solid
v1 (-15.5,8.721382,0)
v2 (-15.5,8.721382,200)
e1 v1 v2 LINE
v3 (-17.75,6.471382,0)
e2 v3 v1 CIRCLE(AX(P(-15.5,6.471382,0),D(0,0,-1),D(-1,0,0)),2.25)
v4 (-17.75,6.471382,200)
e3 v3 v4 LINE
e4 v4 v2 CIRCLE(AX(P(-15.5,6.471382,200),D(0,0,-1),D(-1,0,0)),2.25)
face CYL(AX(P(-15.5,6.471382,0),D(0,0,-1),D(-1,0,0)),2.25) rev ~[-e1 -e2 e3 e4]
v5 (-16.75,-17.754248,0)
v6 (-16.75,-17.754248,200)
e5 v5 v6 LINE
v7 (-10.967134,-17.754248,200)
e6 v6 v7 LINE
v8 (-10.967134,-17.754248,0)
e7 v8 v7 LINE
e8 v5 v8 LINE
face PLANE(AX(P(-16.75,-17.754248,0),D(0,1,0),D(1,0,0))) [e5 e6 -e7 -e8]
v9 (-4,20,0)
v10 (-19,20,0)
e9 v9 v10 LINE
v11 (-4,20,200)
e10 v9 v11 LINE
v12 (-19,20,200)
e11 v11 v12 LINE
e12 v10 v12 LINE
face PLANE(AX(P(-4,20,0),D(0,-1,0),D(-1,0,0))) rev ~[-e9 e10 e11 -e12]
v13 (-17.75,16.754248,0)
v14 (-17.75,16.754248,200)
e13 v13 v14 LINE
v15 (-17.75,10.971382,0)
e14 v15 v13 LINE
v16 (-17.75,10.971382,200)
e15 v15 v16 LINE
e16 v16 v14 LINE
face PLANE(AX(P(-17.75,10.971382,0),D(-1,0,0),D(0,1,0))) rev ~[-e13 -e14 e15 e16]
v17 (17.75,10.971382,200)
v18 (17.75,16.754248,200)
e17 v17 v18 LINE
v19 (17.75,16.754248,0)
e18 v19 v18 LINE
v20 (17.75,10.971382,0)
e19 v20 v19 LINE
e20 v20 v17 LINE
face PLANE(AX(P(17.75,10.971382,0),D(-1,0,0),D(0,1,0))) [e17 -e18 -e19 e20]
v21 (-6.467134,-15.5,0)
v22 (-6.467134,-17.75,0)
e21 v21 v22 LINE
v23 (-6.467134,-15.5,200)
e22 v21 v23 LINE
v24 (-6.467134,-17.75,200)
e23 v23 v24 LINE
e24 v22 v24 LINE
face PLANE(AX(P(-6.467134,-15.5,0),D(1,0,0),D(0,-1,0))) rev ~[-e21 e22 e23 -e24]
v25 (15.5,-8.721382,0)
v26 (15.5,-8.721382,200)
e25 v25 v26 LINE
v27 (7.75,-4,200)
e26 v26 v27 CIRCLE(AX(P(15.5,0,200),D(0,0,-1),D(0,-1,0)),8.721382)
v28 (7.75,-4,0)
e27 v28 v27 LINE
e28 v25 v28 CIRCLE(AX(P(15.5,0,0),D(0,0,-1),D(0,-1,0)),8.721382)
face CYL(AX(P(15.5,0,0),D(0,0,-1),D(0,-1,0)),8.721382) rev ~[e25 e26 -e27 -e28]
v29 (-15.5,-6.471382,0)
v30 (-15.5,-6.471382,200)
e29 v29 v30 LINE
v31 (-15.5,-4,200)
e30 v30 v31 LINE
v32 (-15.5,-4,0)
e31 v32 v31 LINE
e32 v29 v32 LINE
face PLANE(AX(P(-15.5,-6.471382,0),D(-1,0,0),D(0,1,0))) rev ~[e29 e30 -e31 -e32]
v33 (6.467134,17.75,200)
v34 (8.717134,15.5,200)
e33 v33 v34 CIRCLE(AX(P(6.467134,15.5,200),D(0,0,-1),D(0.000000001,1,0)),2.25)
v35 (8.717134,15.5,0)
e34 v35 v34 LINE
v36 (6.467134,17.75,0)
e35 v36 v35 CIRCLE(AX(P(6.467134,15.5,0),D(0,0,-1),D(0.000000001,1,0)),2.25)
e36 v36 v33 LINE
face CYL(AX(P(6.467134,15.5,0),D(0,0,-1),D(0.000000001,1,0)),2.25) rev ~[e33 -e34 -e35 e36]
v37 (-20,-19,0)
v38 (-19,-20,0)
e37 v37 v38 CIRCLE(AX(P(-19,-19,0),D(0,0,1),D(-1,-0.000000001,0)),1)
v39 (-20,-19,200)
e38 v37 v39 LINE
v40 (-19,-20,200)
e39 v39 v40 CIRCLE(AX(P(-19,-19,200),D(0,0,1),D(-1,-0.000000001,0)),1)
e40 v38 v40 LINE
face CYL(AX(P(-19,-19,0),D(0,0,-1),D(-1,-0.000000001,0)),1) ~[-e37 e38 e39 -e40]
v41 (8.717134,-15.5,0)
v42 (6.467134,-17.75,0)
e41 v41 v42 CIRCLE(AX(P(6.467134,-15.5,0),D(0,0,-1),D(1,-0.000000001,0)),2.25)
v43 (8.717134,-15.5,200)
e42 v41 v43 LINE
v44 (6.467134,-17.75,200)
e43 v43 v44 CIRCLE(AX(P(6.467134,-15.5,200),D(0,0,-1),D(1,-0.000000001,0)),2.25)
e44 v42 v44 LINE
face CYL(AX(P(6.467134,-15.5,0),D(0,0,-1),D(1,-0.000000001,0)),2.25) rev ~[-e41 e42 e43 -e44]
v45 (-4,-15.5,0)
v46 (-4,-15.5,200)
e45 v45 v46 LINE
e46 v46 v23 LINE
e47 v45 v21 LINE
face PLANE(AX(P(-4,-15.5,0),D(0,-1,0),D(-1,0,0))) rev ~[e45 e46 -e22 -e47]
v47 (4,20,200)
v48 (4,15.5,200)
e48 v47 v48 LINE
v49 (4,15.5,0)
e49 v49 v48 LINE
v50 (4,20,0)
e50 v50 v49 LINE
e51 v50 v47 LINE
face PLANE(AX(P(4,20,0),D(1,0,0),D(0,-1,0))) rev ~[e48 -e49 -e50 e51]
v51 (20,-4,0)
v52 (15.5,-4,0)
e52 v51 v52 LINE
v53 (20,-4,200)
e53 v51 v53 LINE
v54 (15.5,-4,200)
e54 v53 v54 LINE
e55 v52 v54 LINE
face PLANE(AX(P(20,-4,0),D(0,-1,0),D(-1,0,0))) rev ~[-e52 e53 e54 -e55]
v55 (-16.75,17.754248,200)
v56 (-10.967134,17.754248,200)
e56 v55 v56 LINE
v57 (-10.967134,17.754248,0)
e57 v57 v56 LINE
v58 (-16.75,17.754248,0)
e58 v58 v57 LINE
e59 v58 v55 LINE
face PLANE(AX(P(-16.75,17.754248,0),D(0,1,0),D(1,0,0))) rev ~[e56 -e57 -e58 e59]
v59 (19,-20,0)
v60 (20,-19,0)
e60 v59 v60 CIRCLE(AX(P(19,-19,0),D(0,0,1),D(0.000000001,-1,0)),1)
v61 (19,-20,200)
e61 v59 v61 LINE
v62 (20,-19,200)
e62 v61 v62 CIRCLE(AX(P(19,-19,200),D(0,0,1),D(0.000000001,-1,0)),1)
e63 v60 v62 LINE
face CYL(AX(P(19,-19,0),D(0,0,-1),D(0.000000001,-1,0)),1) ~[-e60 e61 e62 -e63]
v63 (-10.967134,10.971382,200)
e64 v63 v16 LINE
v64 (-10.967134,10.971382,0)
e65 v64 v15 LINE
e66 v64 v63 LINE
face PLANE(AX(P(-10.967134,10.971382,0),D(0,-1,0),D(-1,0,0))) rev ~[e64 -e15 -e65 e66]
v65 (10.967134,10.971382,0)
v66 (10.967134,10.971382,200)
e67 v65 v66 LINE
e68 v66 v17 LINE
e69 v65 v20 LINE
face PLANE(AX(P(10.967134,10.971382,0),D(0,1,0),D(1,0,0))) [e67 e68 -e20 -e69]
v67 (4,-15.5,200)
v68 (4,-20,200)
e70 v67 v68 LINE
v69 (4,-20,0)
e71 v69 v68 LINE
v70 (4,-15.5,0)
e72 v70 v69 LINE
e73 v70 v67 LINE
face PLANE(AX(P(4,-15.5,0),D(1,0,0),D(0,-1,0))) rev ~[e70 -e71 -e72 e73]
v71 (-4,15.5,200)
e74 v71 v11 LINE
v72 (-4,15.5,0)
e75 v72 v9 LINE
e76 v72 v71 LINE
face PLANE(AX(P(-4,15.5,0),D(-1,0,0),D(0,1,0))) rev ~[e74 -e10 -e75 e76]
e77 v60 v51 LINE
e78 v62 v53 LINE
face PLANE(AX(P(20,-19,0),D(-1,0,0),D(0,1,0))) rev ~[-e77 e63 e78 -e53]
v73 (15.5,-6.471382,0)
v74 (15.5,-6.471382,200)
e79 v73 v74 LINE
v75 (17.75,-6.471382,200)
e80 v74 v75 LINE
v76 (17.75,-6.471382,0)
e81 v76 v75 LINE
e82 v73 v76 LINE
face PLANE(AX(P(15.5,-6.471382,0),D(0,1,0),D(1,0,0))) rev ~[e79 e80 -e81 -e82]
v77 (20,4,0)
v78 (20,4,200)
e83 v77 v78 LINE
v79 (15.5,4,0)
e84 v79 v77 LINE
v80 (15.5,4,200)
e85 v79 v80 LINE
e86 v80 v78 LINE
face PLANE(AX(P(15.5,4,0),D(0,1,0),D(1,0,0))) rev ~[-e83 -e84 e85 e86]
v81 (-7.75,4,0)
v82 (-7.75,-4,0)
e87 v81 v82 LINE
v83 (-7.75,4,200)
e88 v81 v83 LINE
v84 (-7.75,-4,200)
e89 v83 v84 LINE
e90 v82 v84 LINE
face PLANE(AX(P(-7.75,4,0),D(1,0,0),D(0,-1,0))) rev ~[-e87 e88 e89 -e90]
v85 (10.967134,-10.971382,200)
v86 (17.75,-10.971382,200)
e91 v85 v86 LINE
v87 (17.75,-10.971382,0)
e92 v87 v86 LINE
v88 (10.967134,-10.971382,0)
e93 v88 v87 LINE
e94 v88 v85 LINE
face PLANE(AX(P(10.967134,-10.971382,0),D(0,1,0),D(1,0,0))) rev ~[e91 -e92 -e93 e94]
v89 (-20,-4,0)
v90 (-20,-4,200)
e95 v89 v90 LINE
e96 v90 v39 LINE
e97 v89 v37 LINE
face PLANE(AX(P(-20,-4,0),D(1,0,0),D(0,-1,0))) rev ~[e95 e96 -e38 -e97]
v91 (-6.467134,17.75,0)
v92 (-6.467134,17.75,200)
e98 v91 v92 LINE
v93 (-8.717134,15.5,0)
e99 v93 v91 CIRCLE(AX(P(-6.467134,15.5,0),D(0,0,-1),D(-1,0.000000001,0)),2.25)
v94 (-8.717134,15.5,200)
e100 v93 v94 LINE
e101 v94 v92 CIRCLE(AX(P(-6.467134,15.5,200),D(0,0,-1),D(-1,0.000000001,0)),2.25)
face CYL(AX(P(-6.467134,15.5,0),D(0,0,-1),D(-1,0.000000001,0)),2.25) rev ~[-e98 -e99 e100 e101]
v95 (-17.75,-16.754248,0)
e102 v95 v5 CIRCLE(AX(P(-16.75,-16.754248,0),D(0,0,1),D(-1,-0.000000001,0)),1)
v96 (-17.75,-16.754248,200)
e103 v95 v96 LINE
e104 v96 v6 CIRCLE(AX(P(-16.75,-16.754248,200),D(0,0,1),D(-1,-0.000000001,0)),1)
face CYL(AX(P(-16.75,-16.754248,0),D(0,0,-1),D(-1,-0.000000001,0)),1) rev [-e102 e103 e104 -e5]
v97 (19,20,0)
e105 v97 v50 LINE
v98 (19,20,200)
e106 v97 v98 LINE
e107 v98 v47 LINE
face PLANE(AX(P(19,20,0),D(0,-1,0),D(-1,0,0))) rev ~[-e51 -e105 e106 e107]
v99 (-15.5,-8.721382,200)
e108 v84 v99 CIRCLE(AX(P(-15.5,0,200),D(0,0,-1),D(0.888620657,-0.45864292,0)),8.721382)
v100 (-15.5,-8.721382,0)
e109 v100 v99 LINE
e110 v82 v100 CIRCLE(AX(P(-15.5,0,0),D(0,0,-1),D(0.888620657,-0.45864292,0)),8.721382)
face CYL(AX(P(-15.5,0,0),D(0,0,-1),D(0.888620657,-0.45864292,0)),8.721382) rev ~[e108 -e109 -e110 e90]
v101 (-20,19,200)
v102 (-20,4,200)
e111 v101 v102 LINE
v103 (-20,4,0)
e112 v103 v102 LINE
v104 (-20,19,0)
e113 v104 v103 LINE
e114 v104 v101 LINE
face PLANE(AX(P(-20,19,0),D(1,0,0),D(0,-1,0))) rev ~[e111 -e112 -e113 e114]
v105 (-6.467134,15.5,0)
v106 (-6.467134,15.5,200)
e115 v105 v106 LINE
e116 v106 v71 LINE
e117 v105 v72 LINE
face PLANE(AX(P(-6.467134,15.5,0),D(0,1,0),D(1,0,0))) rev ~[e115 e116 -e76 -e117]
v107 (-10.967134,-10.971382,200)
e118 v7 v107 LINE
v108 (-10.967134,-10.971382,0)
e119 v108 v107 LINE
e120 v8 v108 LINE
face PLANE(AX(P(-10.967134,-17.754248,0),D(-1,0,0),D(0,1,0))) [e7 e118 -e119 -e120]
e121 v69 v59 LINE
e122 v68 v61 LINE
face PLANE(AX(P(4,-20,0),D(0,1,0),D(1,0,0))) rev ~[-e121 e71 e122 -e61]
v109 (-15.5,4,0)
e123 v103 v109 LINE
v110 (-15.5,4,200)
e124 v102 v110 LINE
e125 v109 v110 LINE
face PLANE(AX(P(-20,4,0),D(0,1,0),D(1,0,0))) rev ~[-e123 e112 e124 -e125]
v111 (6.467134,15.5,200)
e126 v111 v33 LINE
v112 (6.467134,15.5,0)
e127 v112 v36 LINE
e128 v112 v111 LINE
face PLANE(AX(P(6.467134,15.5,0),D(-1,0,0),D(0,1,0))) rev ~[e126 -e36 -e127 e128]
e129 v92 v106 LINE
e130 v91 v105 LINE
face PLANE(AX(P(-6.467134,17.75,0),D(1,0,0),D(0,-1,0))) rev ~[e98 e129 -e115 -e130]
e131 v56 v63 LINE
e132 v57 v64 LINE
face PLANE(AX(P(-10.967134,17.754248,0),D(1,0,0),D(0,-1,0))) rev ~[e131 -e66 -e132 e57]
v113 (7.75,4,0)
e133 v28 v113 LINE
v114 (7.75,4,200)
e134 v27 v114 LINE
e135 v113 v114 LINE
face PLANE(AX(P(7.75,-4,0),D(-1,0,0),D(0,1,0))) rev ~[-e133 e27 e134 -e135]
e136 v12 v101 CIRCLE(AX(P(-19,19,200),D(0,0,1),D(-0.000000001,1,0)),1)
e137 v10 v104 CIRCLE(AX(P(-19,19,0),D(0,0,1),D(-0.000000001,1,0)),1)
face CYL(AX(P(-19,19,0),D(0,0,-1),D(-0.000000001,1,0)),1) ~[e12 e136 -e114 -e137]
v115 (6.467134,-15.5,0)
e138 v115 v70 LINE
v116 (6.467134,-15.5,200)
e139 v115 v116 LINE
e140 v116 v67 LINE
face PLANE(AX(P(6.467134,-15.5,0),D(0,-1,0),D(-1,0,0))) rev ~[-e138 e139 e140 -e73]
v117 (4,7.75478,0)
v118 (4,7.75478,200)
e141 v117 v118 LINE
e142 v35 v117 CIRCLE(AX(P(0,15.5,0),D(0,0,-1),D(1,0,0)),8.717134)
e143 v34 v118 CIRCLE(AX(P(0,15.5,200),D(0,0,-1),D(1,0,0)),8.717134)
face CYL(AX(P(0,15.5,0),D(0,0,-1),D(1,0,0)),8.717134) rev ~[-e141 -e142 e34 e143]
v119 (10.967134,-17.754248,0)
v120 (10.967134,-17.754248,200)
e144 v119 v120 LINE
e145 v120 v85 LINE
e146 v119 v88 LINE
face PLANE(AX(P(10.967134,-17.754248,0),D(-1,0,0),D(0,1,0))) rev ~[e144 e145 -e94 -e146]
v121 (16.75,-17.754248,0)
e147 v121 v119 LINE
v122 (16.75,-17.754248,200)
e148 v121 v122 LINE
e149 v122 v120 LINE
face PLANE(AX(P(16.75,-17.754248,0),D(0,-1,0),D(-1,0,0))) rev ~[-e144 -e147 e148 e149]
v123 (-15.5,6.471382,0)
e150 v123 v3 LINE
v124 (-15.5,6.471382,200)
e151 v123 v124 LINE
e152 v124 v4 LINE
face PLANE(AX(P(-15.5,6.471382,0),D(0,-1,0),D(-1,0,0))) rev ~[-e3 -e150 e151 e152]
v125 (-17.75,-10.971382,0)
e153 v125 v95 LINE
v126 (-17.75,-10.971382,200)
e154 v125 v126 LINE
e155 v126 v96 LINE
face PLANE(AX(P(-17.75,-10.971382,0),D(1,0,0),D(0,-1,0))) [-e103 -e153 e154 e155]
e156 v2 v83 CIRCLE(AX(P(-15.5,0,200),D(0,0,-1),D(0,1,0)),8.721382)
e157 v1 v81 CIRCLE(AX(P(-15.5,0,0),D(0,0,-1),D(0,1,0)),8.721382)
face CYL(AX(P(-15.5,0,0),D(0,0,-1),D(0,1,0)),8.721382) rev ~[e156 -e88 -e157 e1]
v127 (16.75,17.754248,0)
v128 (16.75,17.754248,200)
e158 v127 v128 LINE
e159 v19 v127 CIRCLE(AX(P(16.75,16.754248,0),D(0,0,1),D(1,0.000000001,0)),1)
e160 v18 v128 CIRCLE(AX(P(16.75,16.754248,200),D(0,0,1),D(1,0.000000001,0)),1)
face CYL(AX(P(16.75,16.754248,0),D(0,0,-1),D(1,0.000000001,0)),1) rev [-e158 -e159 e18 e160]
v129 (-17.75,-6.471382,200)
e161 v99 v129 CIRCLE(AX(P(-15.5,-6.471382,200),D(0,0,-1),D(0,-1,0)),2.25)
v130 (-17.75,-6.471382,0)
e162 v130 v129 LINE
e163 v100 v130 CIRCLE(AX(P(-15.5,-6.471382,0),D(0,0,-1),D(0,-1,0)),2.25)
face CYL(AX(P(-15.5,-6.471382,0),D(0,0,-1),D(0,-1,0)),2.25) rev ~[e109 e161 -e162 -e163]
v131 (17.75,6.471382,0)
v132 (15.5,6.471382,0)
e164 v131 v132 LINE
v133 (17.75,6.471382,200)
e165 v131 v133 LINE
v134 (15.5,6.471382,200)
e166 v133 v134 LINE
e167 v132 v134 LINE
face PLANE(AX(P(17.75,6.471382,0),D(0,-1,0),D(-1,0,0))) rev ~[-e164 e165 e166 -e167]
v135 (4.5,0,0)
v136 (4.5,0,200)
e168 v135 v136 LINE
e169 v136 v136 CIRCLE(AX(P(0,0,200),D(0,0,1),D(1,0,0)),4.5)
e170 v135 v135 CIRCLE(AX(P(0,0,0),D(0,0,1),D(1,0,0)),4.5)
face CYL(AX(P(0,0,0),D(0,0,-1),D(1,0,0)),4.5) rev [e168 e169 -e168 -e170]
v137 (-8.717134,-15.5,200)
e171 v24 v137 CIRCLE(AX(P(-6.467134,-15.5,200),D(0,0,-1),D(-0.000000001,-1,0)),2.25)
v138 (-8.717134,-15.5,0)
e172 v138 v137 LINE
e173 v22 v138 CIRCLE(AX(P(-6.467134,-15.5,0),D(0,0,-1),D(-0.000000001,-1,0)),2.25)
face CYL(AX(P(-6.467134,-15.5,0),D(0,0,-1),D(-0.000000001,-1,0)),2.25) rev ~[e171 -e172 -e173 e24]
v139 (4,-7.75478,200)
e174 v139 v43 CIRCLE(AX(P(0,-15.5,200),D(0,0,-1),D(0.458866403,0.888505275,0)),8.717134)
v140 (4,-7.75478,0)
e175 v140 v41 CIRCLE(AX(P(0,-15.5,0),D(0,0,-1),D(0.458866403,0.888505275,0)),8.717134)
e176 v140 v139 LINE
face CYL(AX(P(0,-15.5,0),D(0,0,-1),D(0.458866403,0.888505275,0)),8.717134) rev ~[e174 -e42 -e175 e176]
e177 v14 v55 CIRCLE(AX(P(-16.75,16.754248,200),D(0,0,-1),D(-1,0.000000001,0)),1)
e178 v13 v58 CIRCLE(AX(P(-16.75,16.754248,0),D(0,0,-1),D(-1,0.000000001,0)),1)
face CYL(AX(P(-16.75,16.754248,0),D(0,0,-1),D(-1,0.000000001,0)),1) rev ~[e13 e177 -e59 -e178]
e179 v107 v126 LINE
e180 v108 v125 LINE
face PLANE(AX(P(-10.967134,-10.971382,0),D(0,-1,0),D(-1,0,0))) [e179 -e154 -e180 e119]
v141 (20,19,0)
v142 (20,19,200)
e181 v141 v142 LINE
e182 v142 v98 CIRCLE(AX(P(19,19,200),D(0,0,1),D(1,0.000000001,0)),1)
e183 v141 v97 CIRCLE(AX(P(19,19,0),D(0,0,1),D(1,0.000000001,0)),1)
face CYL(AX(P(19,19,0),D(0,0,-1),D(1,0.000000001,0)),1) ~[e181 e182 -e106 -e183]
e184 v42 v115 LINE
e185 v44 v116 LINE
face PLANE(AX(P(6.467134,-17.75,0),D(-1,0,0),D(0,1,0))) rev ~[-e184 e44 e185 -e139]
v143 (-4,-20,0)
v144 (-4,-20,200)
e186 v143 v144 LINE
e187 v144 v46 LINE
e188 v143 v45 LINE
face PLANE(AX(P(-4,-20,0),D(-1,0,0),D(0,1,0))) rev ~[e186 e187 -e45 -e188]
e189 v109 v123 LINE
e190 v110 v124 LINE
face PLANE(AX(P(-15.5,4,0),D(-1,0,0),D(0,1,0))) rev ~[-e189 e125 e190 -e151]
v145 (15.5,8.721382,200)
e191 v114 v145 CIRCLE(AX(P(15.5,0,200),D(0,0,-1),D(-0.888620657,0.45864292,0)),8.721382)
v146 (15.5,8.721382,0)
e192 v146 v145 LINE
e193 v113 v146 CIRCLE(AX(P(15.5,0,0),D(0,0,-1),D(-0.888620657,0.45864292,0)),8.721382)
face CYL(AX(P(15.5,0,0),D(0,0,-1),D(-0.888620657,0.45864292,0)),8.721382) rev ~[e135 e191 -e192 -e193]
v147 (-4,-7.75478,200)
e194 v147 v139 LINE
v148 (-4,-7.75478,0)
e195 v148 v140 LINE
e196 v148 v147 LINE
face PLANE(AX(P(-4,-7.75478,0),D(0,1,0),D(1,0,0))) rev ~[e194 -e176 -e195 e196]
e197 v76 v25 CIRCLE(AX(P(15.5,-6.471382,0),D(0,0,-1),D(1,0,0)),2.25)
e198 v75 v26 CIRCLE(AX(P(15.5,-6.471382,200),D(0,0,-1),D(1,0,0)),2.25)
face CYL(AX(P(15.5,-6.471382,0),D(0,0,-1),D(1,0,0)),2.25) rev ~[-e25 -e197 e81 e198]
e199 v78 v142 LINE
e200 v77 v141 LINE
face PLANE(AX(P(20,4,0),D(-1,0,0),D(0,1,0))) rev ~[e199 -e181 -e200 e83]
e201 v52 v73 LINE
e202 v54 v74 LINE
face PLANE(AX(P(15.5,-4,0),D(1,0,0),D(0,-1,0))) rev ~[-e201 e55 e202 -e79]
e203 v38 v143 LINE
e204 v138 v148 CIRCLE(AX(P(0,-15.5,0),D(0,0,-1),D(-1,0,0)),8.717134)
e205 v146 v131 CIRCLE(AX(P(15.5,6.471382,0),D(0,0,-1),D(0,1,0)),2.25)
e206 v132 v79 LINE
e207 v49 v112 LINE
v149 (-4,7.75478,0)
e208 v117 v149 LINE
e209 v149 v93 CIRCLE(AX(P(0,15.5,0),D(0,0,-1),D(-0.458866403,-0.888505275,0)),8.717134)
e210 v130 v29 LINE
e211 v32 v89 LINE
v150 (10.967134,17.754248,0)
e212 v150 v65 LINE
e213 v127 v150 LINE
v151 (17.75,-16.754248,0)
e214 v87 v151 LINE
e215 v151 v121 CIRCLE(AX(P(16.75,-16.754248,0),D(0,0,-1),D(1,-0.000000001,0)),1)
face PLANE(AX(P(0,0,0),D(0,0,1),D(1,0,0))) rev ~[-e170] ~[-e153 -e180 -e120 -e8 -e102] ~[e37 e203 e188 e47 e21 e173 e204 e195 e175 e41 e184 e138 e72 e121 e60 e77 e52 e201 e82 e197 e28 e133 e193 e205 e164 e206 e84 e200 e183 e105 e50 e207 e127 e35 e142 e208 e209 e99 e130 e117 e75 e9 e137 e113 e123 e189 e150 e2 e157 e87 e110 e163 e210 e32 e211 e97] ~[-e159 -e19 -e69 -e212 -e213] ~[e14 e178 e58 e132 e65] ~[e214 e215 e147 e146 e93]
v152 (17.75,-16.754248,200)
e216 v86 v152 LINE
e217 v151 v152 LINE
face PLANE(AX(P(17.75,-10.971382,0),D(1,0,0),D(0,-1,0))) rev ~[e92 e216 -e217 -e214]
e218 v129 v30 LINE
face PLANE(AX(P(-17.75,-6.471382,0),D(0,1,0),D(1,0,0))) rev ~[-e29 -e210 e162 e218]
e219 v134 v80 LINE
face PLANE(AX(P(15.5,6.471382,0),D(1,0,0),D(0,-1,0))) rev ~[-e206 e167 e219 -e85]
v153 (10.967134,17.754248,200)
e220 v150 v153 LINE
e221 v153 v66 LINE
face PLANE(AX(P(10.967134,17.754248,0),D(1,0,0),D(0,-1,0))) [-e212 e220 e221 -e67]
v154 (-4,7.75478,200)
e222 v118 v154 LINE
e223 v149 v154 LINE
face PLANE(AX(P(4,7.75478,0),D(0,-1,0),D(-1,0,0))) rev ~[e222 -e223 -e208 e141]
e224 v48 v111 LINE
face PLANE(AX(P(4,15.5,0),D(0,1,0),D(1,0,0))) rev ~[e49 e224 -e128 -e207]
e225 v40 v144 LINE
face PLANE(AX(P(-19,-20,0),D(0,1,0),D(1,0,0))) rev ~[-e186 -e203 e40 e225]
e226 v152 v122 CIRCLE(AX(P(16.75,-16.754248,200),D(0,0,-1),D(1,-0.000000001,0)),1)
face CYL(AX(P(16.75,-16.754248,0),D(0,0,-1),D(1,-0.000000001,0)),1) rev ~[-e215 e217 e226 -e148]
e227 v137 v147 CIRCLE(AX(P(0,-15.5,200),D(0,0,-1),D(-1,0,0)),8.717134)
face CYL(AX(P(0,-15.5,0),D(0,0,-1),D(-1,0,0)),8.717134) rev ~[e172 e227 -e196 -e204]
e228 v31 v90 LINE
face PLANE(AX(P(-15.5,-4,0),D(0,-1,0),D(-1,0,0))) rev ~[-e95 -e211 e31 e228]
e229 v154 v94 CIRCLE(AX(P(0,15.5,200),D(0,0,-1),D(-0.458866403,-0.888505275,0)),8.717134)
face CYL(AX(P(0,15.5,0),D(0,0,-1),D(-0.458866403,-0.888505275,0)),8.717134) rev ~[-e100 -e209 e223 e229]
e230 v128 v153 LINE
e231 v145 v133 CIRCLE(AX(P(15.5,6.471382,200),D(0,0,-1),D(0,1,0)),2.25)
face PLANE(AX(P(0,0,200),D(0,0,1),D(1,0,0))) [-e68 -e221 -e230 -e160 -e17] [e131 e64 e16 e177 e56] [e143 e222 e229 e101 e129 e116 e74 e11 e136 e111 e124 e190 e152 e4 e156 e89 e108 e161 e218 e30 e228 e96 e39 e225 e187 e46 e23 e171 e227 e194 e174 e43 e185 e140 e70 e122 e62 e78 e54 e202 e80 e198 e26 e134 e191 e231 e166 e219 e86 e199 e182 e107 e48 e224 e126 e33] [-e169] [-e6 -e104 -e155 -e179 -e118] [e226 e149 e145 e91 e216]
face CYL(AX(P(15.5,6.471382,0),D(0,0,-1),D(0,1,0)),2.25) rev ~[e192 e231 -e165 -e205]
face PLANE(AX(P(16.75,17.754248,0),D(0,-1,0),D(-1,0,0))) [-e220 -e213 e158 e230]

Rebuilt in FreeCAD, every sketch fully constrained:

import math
import FreeCAD as App
import Part
import Sketcher
Q = App.Units.Quantity

doc = App.newDocument("Part")
body = doc.addObject("PartDesign::Body", "Body")

# Sketch on XY plane
sketch1 = body.newObject("Sketcher::SketchObject", "Sketch")
sketch1.AttachmentSupport = (doc.getObject("XY_Plane"), [""])
sketch1.MapMode = "FlatFace"
sketch1.addGeometry(Part.LineSegment(App.Vector(4, 7.75478, 0), App.Vector(-4, 7.75478, 0)), False)
sketch1.addGeometry(Part.ArcOfCircle(Part.Circle(App.Vector(0, 15.5, 0), App.Vector(0, 0, 1), 8.717134), math.radians(-180), math.radians(-117.313983)), False)
sketch1.addGeometry(Part.ArcOfCircle(Part.Circle(App.Vector(-6.467134, 15.5, 0), App.Vector(0, 0, 1), 2.25), math.radians(90), math.radians(180)), False)
sketch1.addGeometry(Part.LineSegment(App.Vector(-6.467134, 17.75, 0), App.Vector(-6.467134, 15.5, 0)), False)
sketch1.addGeometry(Part.LineSegment(App.Vector(-6.467134, 15.5, 0), App.Vector(-4, 15.5, 0)), False)
sketch1.addGeometry(Part.LineSegment(App.Vector(-4, 15.5, 0), App.Vector(-4, 20, 0)), False)
sketch1.addGeometry(Part.LineSegment(App.Vector(-4, 20, 0), App.Vector(-19, 20, 0)), False)
sketch1.addGeometry(Part.ArcOfCircle(Part.Circle(App.Vector(-19, 19, 0), App.Vector(0, 0, 1), 1), math.radians(90), math.radians(180)), False)
sketch1.addGeometry(Part.LineSegment(App.Vector(-20, 19, 0), App.Vector(-20, 4, 0)), False)
sketch1.addGeometry(Part.LineSegment(App.Vector(-20, 4, 0), App.Vector(-15.5, 4, 0)), False)
sketch1.addGeometry(Part.LineSegment(App.Vector(-15.5, 4, 0), App.Vector(-15.5, 6.471382, 0)), False)
sketch1.addGeometry(Part.LineSegment(App.Vector(-15.5, 6.471382, 0), App.Vector(-17.75, 6.471382, 0)), False)
sketch1.addGeometry(Part.ArcOfCircle(Part.Circle(App.Vector(-15.5, 6.471382, 0), App.Vector(0, 0, 1), 2.25), math.radians(90), math.radians(180)), False)
sketch1.addGeometry(Part.ArcOfCircle(Part.Circle(App.Vector(-15.5, 0, 0), App.Vector(0, 0, 1), 8.721382), math.radians(27.299572), math.radians(90)), False)
sketch1.addGeometry(Part.LineSegment(App.Vector(-7.75, 4, 0), App.Vector(-7.75, -4, 0)), False)
sketch1.addGeometry(Part.ArcOfCircle(Part.Circle(App.Vector(-15.5, 0, 0), App.Vector(0, 0, 1), 8.721382), math.radians(-90), math.radians(-27.299572)), False)
sketch1.addGeometry(Part.ArcOfCircle(Part.Circle(App.Vector(-15.5, -6.471382, 0), App.Vector(0, 0, 1), 2.25), math.radians(-180), math.radians(-90)), False)
sketch1.addGeometry(Part.LineSegment(App.Vector(-17.75, -6.471382, 0), App.Vector(-15.5, -6.471382, 0)), False)
sketch1.addGeometry(Part.LineSegment(App.Vector(-15.5, -6.471382, 0), App.Vector(-15.5, -4, 0)), False)
sketch1.addGeometry(Part.LineSegment(App.Vector(-15.5, -4, 0), App.Vector(-20, -4, 0)), False)
sketch1.addGeometry(Part.LineSegment(App.Vector(-20, -4, 0), App.Vector(-20, -19, 0)), False)
sketch1.addGeometry(Part.ArcOfCircle(Part.Circle(App.Vector(-19, -19, 0), App.Vector(0, 0, 1), 1), math.radians(-180), math.radians(-90)), False)
sketch1.addGeometry(Part.LineSegment(App.Vector(-19, -20, 0), App.Vector(-4, -20, 0)), False)
sketch1.addGeometry(Part.LineSegment(App.Vector(-4, -20, 0), App.Vector(-4, -15.5, 0)), False)
sketch1.addGeometry(Part.LineSegment(App.Vector(-4, -15.5, 0), App.Vector(-6.467134, -15.5, 0)), False)
sketch1.addGeometry(Part.LineSegment(App.Vector(-6.467134, -15.5, 0), App.Vector(-6.467134, -17.75, 0)), False)
sketch1.addGeometry(Part.ArcOfCircle(Part.Circle(App.Vector(-6.467134, -15.5, 0), App.Vector(0, 0, 1), 2.25), math.radians(-180), math.radians(-90)), False)
sketch1.addGeometry(Part.ArcOfCircle(Part.Circle(App.Vector(0, -15.5, 0), App.Vector(0, 0, 1), 8.717134), math.radians(117.313983), math.radians(180)), False)
sketch1.addGeometry(Part.LineSegment(App.Vector(-4, -7.75478, 0), App.Vector(4, -7.75478, 0)), False)
sketch1.addGeometry(Part.ArcOfCircle(Part.Circle(App.Vector(0, -15.5, 0), App.Vector(0, 0, 1), 8.717134), math.radians(0), math.radians(62.686017)), False)
sketch1.addGeometry(Part.ArcOfCircle(Part.Circle(App.Vector(6.467134, -15.5, 0), App.Vector(0, 0, 1), 2.25), math.radians(-90), math.radians(0)), False)
sketch1.addGeometry(Part.LineSegment(App.Vector(6.467134, -17.75, 0), App.Vector(6.467134, -15.5, 0)), False)
sketch1.addGeometry(Part.LineSegment(App.Vector(6.467134, -15.5, 0), App.Vector(4, -15.5, 0)), False)
sketch1.addGeometry(Part.LineSegment(App.Vector(4, -15.5, 0), App.Vector(4, -20, 0)), False)
sketch1.addGeometry(Part.LineSegment(App.Vector(4, -20, 0), App.Vector(19, -20, 0)), False)
sketch1.addGeometry(Part.ArcOfCircle(Part.Circle(App.Vector(19, -19, 0), App.Vector(0, 0, 1), 1), math.radians(-90), math.radians(0)), False)
sketch1.addGeometry(Part.LineSegment(App.Vector(20, -19, 0), App.Vector(20, -4, 0)), False)
sketch1.addGeometry(Part.LineSegment(App.Vector(20, -4, 0), App.Vector(15.5, -4, 0)), False)
sketch1.addGeometry(Part.LineSegment(App.Vector(15.5, -4, 0), App.Vector(15.5, -6.471382, 0)), False)
sketch1.addGeometry(Part.LineSegment(App.Vector(15.5, -6.471382, 0), App.Vector(17.75, -6.471382, 0)), False)
sketch1.addGeometry(Part.ArcOfCircle(Part.Circle(App.Vector(15.5, -6.471382, 0), App.Vector(0, 0, 1), 2.25), math.radians(-90), math.radians(0)), False)
sketch1.addGeometry(Part.ArcOfCircle(Part.Circle(App.Vector(15.5, 0, 0), App.Vector(0, 0, 1), 8.721382), math.radians(-152.700428), math.radians(-90)), False)
sketch1.addGeometry(Part.LineSegment(App.Vector(7.75, -4, 0), App.Vector(7.75, 4, 0)), False)
sketch1.addGeometry(Part.ArcOfCircle(Part.Circle(App.Vector(15.5, 0, 0), App.Vector(0, 0, 1), 8.721382), math.radians(90), math.radians(152.700428)), False)
sketch1.addGeometry(Part.ArcOfCircle(Part.Circle(App.Vector(15.5, 6.471382, 0), App.Vector(0, 0, 1), 2.25), math.radians(0), math.radians(90)), False)
sketch1.addGeometry(Part.LineSegment(App.Vector(17.75, 6.471382, 0), App.Vector(15.5, 6.471382, 0)), False)
sketch1.addGeometry(Part.LineSegment(App.Vector(15.5, 6.471382, 0), App.Vector(15.5, 4, 0)), False)
sketch1.addGeometry(Part.LineSegment(App.Vector(15.5, 4, 0), App.Vector(20, 4, 0)), False)
sketch1.addGeometry(Part.LineSegment(App.Vector(20, 4, 0), App.Vector(20, 19, 0)), False)
sketch1.addGeometry(Part.ArcOfCircle(Part.Circle(App.Vector(19, 19, 0), App.Vector(0, 0, 1), 1), math.radians(0), math.radians(90)), False)
sketch1.addGeometry(Part.LineSegment(App.Vector(19, 20, 0), App.Vector(4, 20, 0)), False)
sketch1.addGeometry(Part.LineSegment(App.Vector(4, 20, 0), App.Vector(4, 15.5, 0)), False)
sketch1.addGeometry(Part.LineSegment(App.Vector(4, 15.5, 0), App.Vector(6.467134, 15.5, 0)), False)
sketch1.addGeometry(Part.LineSegment(App.Vector(6.467134, 15.5, 0), App.Vector(6.467134, 17.75, 0)), False)
sketch1.addGeometry(Part.ArcOfCircle(Part.Circle(App.Vector(6.467134, 15.5, 0), App.Vector(0, 0, 1), 2.25), math.radians(0), math.radians(90)), False)
sketch1.addGeometry(Part.ArcOfCircle(Part.Circle(App.Vector(0, 15.5, 0), App.Vector(0, 0, 1), 8.717134), math.radians(-62.686017), math.radians(0)), False)
sketch1.addGeometry(Part.LineSegment(App.Vector(-17.75, -10.971382, 0), App.Vector(-10.967134, -10.971382, 0)), False)
sketch1.addGeometry(Part.LineSegment(App.Vector(-10.967134, -10.971382, 0), App.Vector(-10.967134, -17.754248, 0)), False)
sketch1.addGeometry(Part.LineSegment(App.Vector(-10.967134, -17.754248, 0), App.Vector(-16.75, -17.754248, 0)), False)
sketch1.addGeometry(Part.ArcOfCircle(Part.Circle(App.Vector(-16.75, -16.754248, 0), App.Vector(0, 0, 1), 1), math.radians(-180), math.radians(-90)), False)
sketch1.addGeometry(Part.LineSegment(App.Vector(-17.75, -16.754248, 0), App.Vector(-17.75, -10.971382, 0)), False)
sketch1.addGeometry(Part.LineSegment(App.Vector(10.967134, -10.971382, 0), App.Vector(17.75, -10.971382, 0)), False)
sketch1.addGeometry(Part.LineSegment(App.Vector(17.75, -10.971382, 0), App.Vector(17.75, -16.754248, 0)), False)
sketch1.addGeometry(Part.ArcOfCircle(Part.Circle(App.Vector(16.75, -16.754248, 0), App.Vector(0, 0, 1), 1), math.radians(-90), math.radians(0)), False)
sketch1.addGeometry(Part.LineSegment(App.Vector(16.75, -17.754248, 0), App.Vector(10.967134, -17.754248, 0)), False)
sketch1.addGeometry(Part.LineSegment(App.Vector(10.967134, -17.754248, 0), App.Vector(10.967134, -10.971382, 0)), False)
sketch1.addGeometry(Part.LineSegment(App.Vector(-10.967134, 10.971382, 0), App.Vector(-17.75, 10.971382, 0)), False)
sketch1.addGeometry(Part.LineSegment(App.Vector(-17.75, 10.971382, 0), App.Vector(-17.75, 16.754248, 0)), False)
sketch1.addGeometry(Part.ArcOfCircle(Part.Circle(App.Vector(-16.75, 16.754248, 0), App.Vector(0, 0, 1), 1), math.radians(90), math.radians(180)), False)
sketch1.addGeometry(Part.LineSegment(App.Vector(-16.75, 17.754248, 0), App.Vector(-10.967134, 17.754248, 0)), False)
sketch1.addGeometry(Part.LineSegment(App.Vector(-10.967134, 17.754248, 0), App.Vector(-10.967134, 10.971382, 0)), False)
sketch1.addGeometry(Part.Circle(App.Vector(0, 0, 0), App.Vector(0, 0, 1), 4.5), False)
sketch1.addGeometry(Part.LineSegment(App.Vector(17.75, 10.971382, 0), App.Vector(10.967134, 10.971382, 0)), False)
sketch1.addGeometry(Part.LineSegment(App.Vector(10.967134, 10.971382, 0), App.Vector(10.967134, 17.754248, 0)), False)
sketch1.addGeometry(Part.LineSegment(App.Vector(10.967134, 17.754248, 0), App.Vector(16.75, 17.754248, 0)), False)
sketch1.addGeometry(Part.ArcOfCircle(Part.Circle(App.Vector(16.75, 16.754248, 0), App.Vector(0, 0, 1), 1), math.radians(0), math.radians(90)), False)
sketch1.addGeometry(Part.LineSegment(App.Vector(17.75, 16.754248, 0), App.Vector(17.75, 10.971382, 0)), False)
sketch1.addConstraint(Sketcher.Constraint("Coincident", 0, 2, 1, 2))
sketch1.addConstraint(Sketcher.Constraint("Tangent", 1, 1, 2, 2))
sketch1.addConstraint(Sketcher.Constraint("Coincident", 2, 1, 3, 1))
sketch1.addConstraint(Sketcher.Constraint("Coincident", 3, 2, 4, 1))
sketch1.addConstraint(Sketcher.Constraint("Coincident", 4, 2, 5, 1))
sketch1.addConstraint(Sketcher.Constraint("Coincident", 5, 2, 6, 1))
sketch1.addConstraint(Sketcher.Constraint("Tangent", 6, 2, 7, 1))
sketch1.addConstraint(Sketcher.Constraint("Tangent", 7, 2, 8, 1))
sketch1.addConstraint(Sketcher.Constraint("Coincident", 8, 2, 9, 1))
sketch1.addConstraint(Sketcher.Constraint("Coincident", 9, 2, 10, 1))
sketch1.addConstraint(Sketcher.Constraint("Coincident", 10, 2, 11, 1))
sketch1.addConstraint(Sketcher.Constraint("Coincident", 11, 2, 12, 2))
sketch1.addConstraint(Sketcher.Constraint("Tangent", 12, 1, 13, 2))
sketch1.addConstraint(Sketcher.Constraint("Coincident", 13, 1, 14, 1))
sketch1.addConstraint(Sketcher.Constraint("Coincident", 14, 2, 15, 2))
sketch1.addConstraint(Sketcher.Constraint("Tangent", 15, 1, 16, 2))
sketch1.addConstraint(Sketcher.Constraint("Coincident", 16, 1, 17, 1))
sketch1.addConstraint(Sketcher.Constraint("Coincident", 17, 2, 18, 1))
sketch1.addConstraint(Sketcher.Constraint("Coincident", 18, 2, 19, 1))
sketch1.addConstraint(Sketcher.Constraint("Coincident", 19, 2, 20, 1))
sketch1.addConstraint(Sketcher.Constraint("Tangent", 20, 2, 21, 1))
sketch1.addConstraint(Sketcher.Constraint("Tangent", 21, 2, 22, 1))
sketch1.addConstraint(Sketcher.Constraint("Coincident", 22, 2, 23, 1))
sketch1.addConstraint(Sketcher.Constraint("Coincident", 23, 2, 24, 1))
sketch1.addConstraint(Sketcher.Constraint("Coincident", 24, 2, 25, 1))
sketch1.addConstraint(Sketcher.Constraint("Coincident", 25, 2, 26, 2))
sketch1.addConstraint(Sketcher.Constraint("Tangent", 26, 1, 27, 2))
sketch1.addConstraint(Sketcher.Constraint("Coincident", 27, 1, 28, 1))
sketch1.addConstraint(Sketcher.Constraint("Coincident", 28, 2, 29, 2))
sketch1.addConstraint(Sketcher.Constraint("Tangent", 29, 1, 30, 2))
sketch1.addConstraint(Sketcher.Constraint("Coincident", 30, 1, 31, 1))
sketch1.addConstraint(Sketcher.Constraint("Coincident", 31, 2, 32, 1))
sketch1.addConstraint(Sketcher.Constraint("Coincident", 32, 2, 33, 1))
sketch1.addConstraint(Sketcher.Constraint("Coincident", 33, 2, 34, 1))
sketch1.addConstraint(Sketcher.Constraint("Tangent", 34, 2, 35, 1))
sketch1.addConstraint(Sketcher.Constraint("Tangent", 35, 2, 36, 1))
sketch1.addConstraint(Sketcher.Constraint("Coincident", 36, 2, 37, 1))
sketch1.addConstraint(Sketcher.Constraint("Coincident", 37, 2, 38, 1))
sketch1.addConstraint(Sketcher.Constraint("Coincident", 38, 2, 39, 1))
sketch1.addConstraint(Sketcher.Constraint("Coincident", 39, 2, 40, 2))
sketch1.addConstraint(Sketcher.Constraint("Tangent", 40, 1, 41, 2))
sketch1.addConstraint(Sketcher.Constraint("Coincident", 41, 1, 42, 1))
sketch1.addConstraint(Sketcher.Constraint("Coincident", 42, 2, 43, 2))
sketch1.addConstraint(Sketcher.Constraint("Tangent", 43, 1, 44, 2))
sketch1.addConstraint(Sketcher.Constraint("Coincident", 44, 1, 45, 1))
sketch1.addConstraint(Sketcher.Constraint("Coincident", 45, 2, 46, 1))
sketch1.addConstraint(Sketcher.Constraint("Coincident", 46, 2, 47, 1))
sketch1.addConstraint(Sketcher.Constraint("Coincident", 47, 2, 48, 1))
sketch1.addConstraint(Sketcher.Constraint("Tangent", 48, 2, 49, 1))
sketch1.addConstraint(Sketcher.Constraint("Tangent", 49, 2, 50, 1))
sketch1.addConstraint(Sketcher.Constraint("Coincident", 50, 2, 51, 1))
sketch1.addConstraint(Sketcher.Constraint("Coincident", 51, 2, 52, 1))
sketch1.addConstraint(Sketcher.Constraint("Coincident", 52, 2, 53, 1))
sketch1.addConstraint(Sketcher.Constraint("Coincident", 53, 2, 54, 2))
sketch1.addConstraint(Sketcher.Constraint("Tangent", 54, 1, 55, 2))
sketch1.addConstraint(Sketcher.Constraint("Coincident", 55, 1, 0, 1))
sketch1.addConstraint(Sketcher.Constraint("Coincident", 56, 2, 57, 1))
sketch1.addConstraint(Sketcher.Constraint("Coincident", 57, 2, 58, 1))
sketch1.addConstraint(Sketcher.Constraint("Tangent", 58, 2, 59, 2))
sketch1.addConstraint(Sketcher.Constraint("Tangent", 59, 1, 60, 1))
sketch1.addConstraint(Sketcher.Constraint("Coincident", 60, 2, 56, 1))
sketch1.addConstraint(Sketcher.Constraint("Coincident", 61, 2, 62, 1))
sketch1.addConstraint(Sketcher.Constraint("Tangent", 62, 2, 63, 2))
sketch1.addConstraint(Sketcher.Constraint("Tangent", 63, 1, 64, 1))
sketch1.addConstraint(Sketcher.Constraint("Coincident", 64, 2, 65, 1))
sketch1.addConstraint(Sketcher.Constraint("Coincident", 65, 2, 61, 1))
sketch1.addConstraint(Sketcher.Constraint("Coincident", 66, 2, 67, 1))
sketch1.addConstraint(Sketcher.Constraint("Tangent", 67, 2, 68, 2))
sketch1.addConstraint(Sketcher.Constraint("Tangent", 68, 1, 69, 1))
sketch1.addConstraint(Sketcher.Constraint("Coincident", 69, 2, 70, 1))
sketch1.addConstraint(Sketcher.Constraint("Coincident", 70, 2, 66, 1))
sketch1.addConstraint(Sketcher.Constraint("Coincident", 72, 2, 73, 1))
sketch1.addConstraint(Sketcher.Constraint("Coincident", 73, 2, 74, 1))
sketch1.addConstraint(Sketcher.Constraint("Tangent", 74, 2, 75, 2))
sketch1.addConstraint(Sketcher.Constraint("Tangent", 75, 1, 76, 1))
sketch1.addConstraint(Sketcher.Constraint("Coincident", 76, 2, 72, 1))
sketch1.addConstraint(Sketcher.Constraint("Horizontal", 0))
sketch1.addConstraint(Sketcher.Constraint("Vertical", 3))
sketch1.addConstraint(Sketcher.Constraint("Horizontal", 4))
sketch1.addConstraint(Sketcher.Constraint("Vertical", 5))
sketch1.addConstraint(Sketcher.Constraint("Horizontal", 6))
sketch1.addConstraint(Sketcher.Constraint("Vertical", 8))
sketch1.addConstraint(Sketcher.Constraint("Horizontal", 9))
sketch1.addConstraint(Sketcher.Constraint("Vertical", 10))
sketch1.addConstraint(Sketcher.Constraint("Horizontal", 11))
sketch1.addConstraint(Sketcher.Constraint("Vertical", 14))
sketch1.addConstraint(Sketcher.Constraint("Horizontal", 17))
sketch1.addConstraint(Sketcher.Constraint("Vertical", 18))
sketch1.addConstraint(Sketcher.Constraint("Horizontal", 19))
sketch1.addConstraint(Sketcher.Constraint("Vertical", 20))
sketch1.addConstraint(Sketcher.Constraint("Horizontal", 22))
sketch1.addConstraint(Sketcher.Constraint("Vertical", 23))
sketch1.addConstraint(Sketcher.Constraint("Horizontal", 24))
sketch1.addConstraint(Sketcher.Constraint("Vertical", 25))
sketch1.addConstraint(Sketcher.Constraint("Horizontal", 28))
sketch1.addConstraint(Sketcher.Constraint("Vertical", 31))
sketch1.addConstraint(Sketcher.Constraint("Horizontal", 32))
sketch1.addConstraint(Sketcher.Constraint("Vertical", 33))
sketch1.addConstraint(Sketcher.Constraint("Horizontal", 34))
sketch1.addConstraint(Sketcher.Constraint("Vertical", 36))
sketch1.addConstraint(Sketcher.Constraint("Horizontal", 37))
sketch1.addConstraint(Sketcher.Constraint("Vertical", 38))
sketch1.addConstraint(Sketcher.Constraint("Horizontal", 39))
sketch1.addConstraint(Sketcher.Constraint("Vertical", 42))
sketch1.addConstraint(Sketcher.Constraint("Horizontal", 45))
sketch1.addConstraint(Sketcher.Constraint("Vertical", 46))
sketch1.addConstraint(Sketcher.Constraint("Horizontal", 47))
sketch1.addConstraint(Sketcher.Constraint("Vertical", 48))
sketch1.addConstraint(Sketcher.Constraint("Horizontal", 50))
sketch1.addConstraint(Sketcher.Constraint("Vertical", 51))
sketch1.addConstraint(Sketcher.Constraint("Horizontal", 52))
sketch1.addConstraint(Sketcher.Constraint("Vertical", 53))
sketch1.addConstraint(Sketcher.Constraint("Horizontal", 56))
sketch1.addConstraint(Sketcher.Constraint("Vertical", 57))
sketch1.addConstraint(Sketcher.Constraint("Horizontal", 58))
sketch1.addConstraint(Sketcher.Constraint("Vertical", 60))
sketch1.addConstraint(Sketcher.Constraint("Horizontal", 61))
sketch1.addConstraint(Sketcher.Constraint("Vertical", 62))
sketch1.addConstraint(Sketcher.Constraint("Horizontal", 64))
sketch1.addConstraint(Sketcher.Constraint("Vertical", 65))
sketch1.addConstraint(Sketcher.Constraint("Horizontal", 66))
sketch1.addConstraint(Sketcher.Constraint("Vertical", 67))
sketch1.addConstraint(Sketcher.Constraint("Horizontal", 69))
sketch1.addConstraint(Sketcher.Constraint("Vertical", 70))
sketch1.addConstraint(Sketcher.Constraint("Horizontal", 72))
sketch1.addConstraint(Sketcher.Constraint("Vertical", 73))
sketch1.addConstraint(Sketcher.Constraint("Horizontal", 74))
sketch1.addConstraint(Sketcher.Constraint("Vertical", 76))
sketch1.addConstraint(Sketcher.Constraint("Coincident", 71, 3, -1, 1))
sketch1.addConstraint(Sketcher.Constraint("Coincident", 15, 3, 13, 3))
sketch1.addConstraint(Sketcher.Constraint("Coincident", 29, 3, 27, 3))
sketch1.addConstraint(Sketcher.Constraint("Coincident", 43, 3, 41, 3))
sketch1.addConstraint(Sketcher.Constraint("Coincident", 55, 3, 1, 3))
sketch1.addConstraint(Sketcher.Constraint("Coincident", 3, 2, 2, 3))
sketch1.addConstraint(Sketcher.Constraint("Coincident", 10, 2, 12, 3))
sketch1.addConstraint(Sketcher.Constraint("Coincident", 17, 2, 16, 3))
sketch1.addConstraint(Sketcher.Constraint("Coincident", 24, 2, 26, 3))
sketch1.addConstraint(Sketcher.Constraint("Coincident", 31, 2, 30, 3))
sketch1.addConstraint(Sketcher.Constraint("Coincident", 38, 2, 40, 3))
sketch1.addConstraint(Sketcher.Constraint("Coincident", 45, 2, 44, 3))
sketch1.addConstraint(Sketcher.Constraint("Coincident", 52, 2, 54, 3))
sketch1.addConstraint(Sketcher.Constraint("Equal", 2, 12))
sketch1.addConstraint(Sketcher.Constraint("Equal", 13, 15))
sketch1.addConstraint(Sketcher.Constraint("Equal", 12, 16))
sketch1.addConstraint(Sketcher.Constraint("Equal", 7, 21))
sketch1.addConstraint(Sketcher.Constraint("Equal", 16, 26))
sketch1.addConstraint(Sketcher.Constraint("Equal", 1, 27))
sketch1.addConstraint(Sketcher.Constraint("Equal", 27, 29))
sketch1.addConstraint(Sketcher.Constraint("Equal", 26, 30))
sketch1.addConstraint(Sketcher.Constraint("Equal", 21, 35))
sketch1.addConstraint(Sketcher.Constraint("Equal", 30, 40))
sketch1.addConstraint(Sketcher.Constraint("Equal", 15, 41))
sketch1.addConstraint(Sketcher.Constraint("Equal", 41, 43))
sketch1.addConstraint(Sketcher.Constraint("Equal", 40, 44))
sketch1.addConstraint(Sketcher.Constraint("Equal", 35, 49))
sketch1.addConstraint(Sketcher.Constraint("Equal", 44, 54))
sketch1.addConstraint(Sketcher.Constraint("Equal", 29, 55))
sketch1.addConstraint(Sketcher.Constraint("Equal", 49, 59))
sketch1.addConstraint(Sketcher.Constraint("Equal", 59, 63))
sketch1.addConstraint(Sketcher.Constraint("Equal", 63, 68))
sketch1.addConstraint(Sketcher.Constraint("Equal", 68, 75))
sketch1.addConstraint(Sketcher.Constraint("Symmetric", 1, 3, 27, 3, -1, 1))
sketch1.addConstraint(Sketcher.Constraint("Symmetric", 7, 3, 35, 3, -1, 1))
sketch1.addConstraint(Sketcher.Constraint("Symmetric", 12, 3, 40, 3, -1, 1))
sketch1.addConstraint(Sketcher.Constraint("Symmetric", 21, 3, 49, 3, -1, 1))
sketch1.addConstraint(Sketcher.Constraint("Symmetric", 63, 3, 68, 3, -1, 1))
sketch1.addConstraint(Sketcher.Constraint("Symmetric", 59, 3, 75, 3, -1, 1))
sketch1.addConstraint(Sketcher.Constraint("Symmetric", 4, 2, 32, 2, -1, 1))
sketch1.addConstraint(Sketcher.Constraint("Symmetric", 13, 1, 41, 1, -1, 1))
sketch1.addConstraint(Sketcher.Constraint("Symmetric", 18, 2, 46, 2, -1, 1))
sketch1.addConstraint(Sketcher.Constraint("Symmetric", 23, 2, 51, 2, -1, 1))
sketch1.addConstraint(Sketcher.Constraint("Symmetric", 65, 2, 70, 2, -1, 1))
sketch1.addConstraint(Sketcher.Constraint("Symmetric", 56, 2, 72, 2, -1, 1))
sketch1.addConstraint(Sketcher.Constraint("Symmetric", 26, 3, 30, 3, -2))
sketch1.addConstraint(Sketcher.Constraint("Symmetric", 21, 3, 35, 3, -2))
sketch1.addConstraint(Sketcher.Constraint("Symmetric", 16, 3, 40, 3, -2))
sketch1.addConstraint(Sketcher.Constraint("Symmetric", 59, 3, 63, 3, -2))
sketch1.addConstraint(Sketcher.Constraint("Symmetric", 56, 2, 65, 2, -2))
sketch1.addConstraint(Sketcher.Constraint("Horizontal", 1, 3, 2, 3))
sketch1.addConstraint(Sketcher.Constraint("Horizontal", 9, 2, 13, 1))
sketch1.addConstraint(Sketcher.Constraint("Horizontal", 14, 2, 18, 2))
sketch1.addConstraint(Sketcher.Constraint("Horizontal", 19, 2, 36, 2))
sketch1.addConstraint(Sketcher.Constraint("Vertical", 12, 3, 13, 3))
sketch1.addConstraint(Sketcher.Constraint("Vertical", 0, 2, 4, 2))
sketch1.addConstraint(Sketcher.Constraint("Vertical", 5, 2, 22, 2))
sketch1.addConstraint(Sketcher.Constraint("Vertical", 23, 2, 27, 1))
sketch1.addConstraint(Sketcher.Constraint("Vertical", 16, 1, 59, 1))
sketch1.addConstraint(Sketcher.Constraint("Equal", 47, 5))
sketch1.addConstraint(Sketcher.Constraint("Equal", 50, 8))
sketch1.addConstraint(Sketcher.Constraint("Equal", 28, 14))
sketch1.addConstraint(Sketcher.Constraint("Equal", 72, 57))
sketch1.addConstraint(Sketcher.Constraint("Diameter", 71, Q("9 mm")))
sketch1.addConstraint(Sketcher.Constraint("Radius", 7, Q("1 mm")))
sketch1.addConstraint(Sketcher.Constraint("DistanceX", 0, 2, 0, 1, Q("8 mm")))
sketch1.addConstraint(Sketcher.Constraint("DistanceX", 6, 2, 6, 1, Q("15 mm")))
sketch1.addConstraint(Sketcher.Constraint("Radius", 2, Q("2.25 mm")))
sketch1.addConstraint(Sketcher.Constraint("DistanceX", 9, 1, 9, 2, Q("4.5 mm")))
sketch1.addConstraint(Sketcher.Constraint("DistanceX", 13, 1, -1, 1, Q("7.75 mm")))
sketch1.addConstraint(Sketcher.Constraint("Radius", 1, Q("8.717134 mm")))
sketch1.addConstraint(Sketcher.Constraint("DistanceX", 56, 1, 56, 2, Q("6.782866 mm")))
sketch1.addConstraint(Sketcher.Constraint("DistanceY", 56, 2, -1, 1, Q("10.971382 mm")))
pad1 = body.newObject("PartDesign::Pad", "Pad")
pad1.Profile = sketch1
pad1.Length = 200

doc.recompute()
